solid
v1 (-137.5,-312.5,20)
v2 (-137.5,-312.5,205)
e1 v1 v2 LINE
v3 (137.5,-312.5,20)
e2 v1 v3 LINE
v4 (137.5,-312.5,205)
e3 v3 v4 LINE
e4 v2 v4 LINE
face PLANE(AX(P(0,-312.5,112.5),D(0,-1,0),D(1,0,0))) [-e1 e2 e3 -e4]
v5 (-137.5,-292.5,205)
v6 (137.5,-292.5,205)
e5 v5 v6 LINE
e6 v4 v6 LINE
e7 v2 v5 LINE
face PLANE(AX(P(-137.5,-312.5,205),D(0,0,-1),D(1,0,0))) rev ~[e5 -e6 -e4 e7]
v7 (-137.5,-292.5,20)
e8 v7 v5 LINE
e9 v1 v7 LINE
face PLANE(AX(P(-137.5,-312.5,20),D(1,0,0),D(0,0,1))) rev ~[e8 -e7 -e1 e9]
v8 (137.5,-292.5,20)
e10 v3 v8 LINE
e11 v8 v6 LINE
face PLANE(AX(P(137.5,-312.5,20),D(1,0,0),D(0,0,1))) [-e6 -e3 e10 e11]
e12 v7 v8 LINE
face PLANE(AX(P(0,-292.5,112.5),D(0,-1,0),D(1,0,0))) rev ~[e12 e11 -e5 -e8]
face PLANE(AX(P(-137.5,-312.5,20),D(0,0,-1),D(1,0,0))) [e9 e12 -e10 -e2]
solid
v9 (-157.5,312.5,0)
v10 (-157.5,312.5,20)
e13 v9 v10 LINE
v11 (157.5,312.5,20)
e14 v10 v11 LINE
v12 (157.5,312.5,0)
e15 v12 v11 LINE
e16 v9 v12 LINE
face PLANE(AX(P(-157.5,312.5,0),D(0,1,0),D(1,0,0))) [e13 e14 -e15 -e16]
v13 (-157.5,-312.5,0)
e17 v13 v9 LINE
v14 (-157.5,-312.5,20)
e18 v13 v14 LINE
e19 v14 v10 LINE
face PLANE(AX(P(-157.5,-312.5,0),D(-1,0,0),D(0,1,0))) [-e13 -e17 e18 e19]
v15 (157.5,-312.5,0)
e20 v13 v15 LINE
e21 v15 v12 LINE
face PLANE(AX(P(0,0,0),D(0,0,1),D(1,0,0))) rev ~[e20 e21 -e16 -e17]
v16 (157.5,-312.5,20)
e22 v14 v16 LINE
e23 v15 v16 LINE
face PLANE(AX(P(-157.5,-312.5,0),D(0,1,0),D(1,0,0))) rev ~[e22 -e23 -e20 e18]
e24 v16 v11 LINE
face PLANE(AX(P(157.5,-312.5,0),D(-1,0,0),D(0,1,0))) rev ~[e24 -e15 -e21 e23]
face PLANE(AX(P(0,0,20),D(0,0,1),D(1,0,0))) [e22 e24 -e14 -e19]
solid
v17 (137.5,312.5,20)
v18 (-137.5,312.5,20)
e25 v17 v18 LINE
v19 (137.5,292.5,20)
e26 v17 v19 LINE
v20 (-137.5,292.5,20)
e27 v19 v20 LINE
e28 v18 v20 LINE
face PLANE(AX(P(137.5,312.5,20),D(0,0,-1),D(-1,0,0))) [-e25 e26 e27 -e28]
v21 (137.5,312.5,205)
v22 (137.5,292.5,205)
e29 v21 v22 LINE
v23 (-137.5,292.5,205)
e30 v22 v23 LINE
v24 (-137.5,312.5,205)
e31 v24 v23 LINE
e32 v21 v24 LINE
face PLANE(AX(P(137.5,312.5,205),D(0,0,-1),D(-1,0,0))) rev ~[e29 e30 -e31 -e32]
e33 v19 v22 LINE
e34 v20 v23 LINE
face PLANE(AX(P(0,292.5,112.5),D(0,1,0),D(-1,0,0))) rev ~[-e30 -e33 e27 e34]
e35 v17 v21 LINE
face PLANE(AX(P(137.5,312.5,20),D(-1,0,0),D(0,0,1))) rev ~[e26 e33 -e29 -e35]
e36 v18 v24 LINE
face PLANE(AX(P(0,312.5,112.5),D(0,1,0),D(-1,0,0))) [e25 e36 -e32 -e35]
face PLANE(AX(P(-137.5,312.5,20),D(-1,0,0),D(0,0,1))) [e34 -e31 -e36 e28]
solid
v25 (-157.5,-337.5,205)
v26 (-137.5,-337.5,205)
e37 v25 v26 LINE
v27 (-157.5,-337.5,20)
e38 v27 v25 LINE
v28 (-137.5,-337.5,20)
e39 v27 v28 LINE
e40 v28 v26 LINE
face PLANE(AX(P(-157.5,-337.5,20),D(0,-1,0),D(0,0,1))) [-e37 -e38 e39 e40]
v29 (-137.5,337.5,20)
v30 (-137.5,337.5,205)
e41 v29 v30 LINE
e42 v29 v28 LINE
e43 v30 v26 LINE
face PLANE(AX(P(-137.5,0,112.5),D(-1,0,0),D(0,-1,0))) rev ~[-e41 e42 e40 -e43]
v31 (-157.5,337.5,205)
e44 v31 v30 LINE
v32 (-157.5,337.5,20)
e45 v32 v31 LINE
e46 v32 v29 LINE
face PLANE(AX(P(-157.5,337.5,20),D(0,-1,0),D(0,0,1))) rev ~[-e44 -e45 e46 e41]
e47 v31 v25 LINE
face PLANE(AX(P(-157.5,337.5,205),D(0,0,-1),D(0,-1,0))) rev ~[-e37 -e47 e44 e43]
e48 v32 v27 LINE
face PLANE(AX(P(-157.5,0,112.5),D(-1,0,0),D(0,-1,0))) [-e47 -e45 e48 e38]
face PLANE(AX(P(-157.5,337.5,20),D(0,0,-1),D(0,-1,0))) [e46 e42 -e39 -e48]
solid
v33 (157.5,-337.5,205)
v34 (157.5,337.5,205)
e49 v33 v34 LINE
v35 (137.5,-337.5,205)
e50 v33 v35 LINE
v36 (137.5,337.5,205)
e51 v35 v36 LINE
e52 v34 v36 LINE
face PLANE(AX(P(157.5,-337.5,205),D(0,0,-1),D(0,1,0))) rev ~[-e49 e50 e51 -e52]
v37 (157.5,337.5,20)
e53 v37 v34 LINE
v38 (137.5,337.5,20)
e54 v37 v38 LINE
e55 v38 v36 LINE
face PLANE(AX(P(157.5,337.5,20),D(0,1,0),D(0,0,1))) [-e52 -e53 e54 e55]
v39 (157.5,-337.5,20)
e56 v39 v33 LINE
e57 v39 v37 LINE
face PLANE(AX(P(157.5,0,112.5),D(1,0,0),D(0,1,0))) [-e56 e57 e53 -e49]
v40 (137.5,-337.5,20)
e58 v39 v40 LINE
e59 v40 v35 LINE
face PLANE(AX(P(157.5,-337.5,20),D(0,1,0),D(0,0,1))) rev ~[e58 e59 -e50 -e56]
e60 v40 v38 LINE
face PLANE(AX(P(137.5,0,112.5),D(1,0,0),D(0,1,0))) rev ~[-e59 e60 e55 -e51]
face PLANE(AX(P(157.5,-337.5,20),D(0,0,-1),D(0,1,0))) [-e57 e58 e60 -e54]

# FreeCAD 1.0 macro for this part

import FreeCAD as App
import Part
import Sketcher
from FreeCAD import Vector
Q = App.Units.Quantity

doc = App.newDocument("Part")
params = doc.addObject("Spreadsheet::Sheet", "Params")
for row, (alias, value) in enumerate([
    ("sketch1_width", "315 mm"),
    ("sketch1_height", "625 mm"),
    ("pad1_length", "20 mm"),
    ("sketch2_width", "675 mm"),
    ("sketch2_height", "185 mm"),
    ("pad2_length", "20 mm"),
    ("sketch3_width", "675 mm"),
    ("sketch3_height", "185 mm"),
    ("pad3_length", "20 mm"),
    ("sketch4_width", "275 mm"),
    ("sketch4_height", "185 mm"),
    ("pad4_length", "20 mm"),
    ("sketch5_width", "275 mm"),
    ("sketch5_height", "185 mm"),
    ("pad5_length", "20 mm"),
], start=1):
    params.set(f"A{row}", alias)
    params.set(f"B{row}", "=" + value)
    params.setAlias(f"B{row}", alias)

body = doc.addObject("PartDesign::Body", "Body")

# Sketch on XY plane
sketch1 = body.newObject("Sketcher::SketchObject", "Sketch")
sketch1.AttachmentSupport = (doc.getObject("XY_Plane"), [""])
sketch1.MapMode = "FlatFace"
sketch1.addGeometry([
    Part.LineSegment(Vector(-157.5, 312.5, 0), Vector(-157.5, -312.5, 0)),
    Part.LineSegment(Vector(-157.5, -312.5, 0), Vector(157.5, -312.5, 0)),
    Part.LineSegment(Vector(157.5, -312.5, 0), Vector(157.5, 312.5, 0)),
    Part.LineSegment(Vector(157.5, 312.5, 0), Vector(-157.5, 312.5, 0)),
], False)
sketch1.addConstraint([
    Sketcher.Constraint("Coincident", 0, 2, 1, 1),
    Sketcher.Constraint("Coincident", 1, 2, 2, 1),
    Sketcher.Constraint("Coincident", 2, 2, 3, 1),
    Sketcher.Constraint("Coincident", 3, 2, 0, 1),
    Sketcher.Constraint("Vertical", 0),
    Sketcher.Constraint("Horizontal", 1),
    Sketcher.Constraint("Vertical", 2),
    Sketcher.Constraint("Horizontal", 3),
    Sketcher.Constraint("Symmetric", 0, 2, 2, 2, -1, 1),
    Sketcher.Constraint("DistanceX", 1, 1, 1, 2, Q("315 mm")),
    Sketcher.Constraint("DistanceY", 0, 2, 0, 1, Q("625 mm")),
])
sketch1.setExpression("Constraints[9]", "Params.sketch1_width")
sketch1.setExpression("Constraints[10]", "Params.sketch1_height")
pad1 = body.newObject("PartDesign::Pad", "Pad")
pad1.Profile = sketch1
pad1.setExpression("Length", "Params.pad1_length")
body2 = doc.addObject("PartDesign::Body", "Body001")

# Sketch on YZ plane
sketch2 = body2.newObject("Sketcher::SketchObject", "Sketch001")
sketch2.AttachmentSupport = (doc.getObject("YZ_Plane001"), [""])
sketch2.MapMode = "FlatFace"
sketch2.AttachmentOffset = App.Placement(Vector(0, 0, 157.5), App.Rotation())
sketch2.addGeometry([
    Part.LineSegment(Vector(-337.5, 205, 0), Vector(-337.5, 20, 0)),
    Part.LineSegment(Vector(-337.5, 20, 0), Vector(337.5, 20, 0)),
    Part.LineSegment(Vector(337.5, 20, 0), Vector(337.5, 205, 0)),
    Part.LineSegment(Vector(337.5, 205, 0), Vector(-337.5, 205, 0)),
], False)
sketch2.addConstraint([
    Sketcher.Constraint("Coincident", 0, 2, 1, 1),
    Sketcher.Constraint("Coincident", 1, 2, 2, 1),
    Sketcher.Constraint("Coincident", 2, 2, 3, 1),
    Sketcher.Constraint("Coincident", 3, 2, 0, 1),
    Sketcher.Constraint("Vertical", 0),
    Sketcher.Constraint("Horizontal", 1),
    Sketcher.Constraint("Vertical", 2),
    Sketcher.Constraint("Horizontal", 3),
    Sketcher.Constraint("DistanceX", 1, 1, 1, 2, Q("675 mm")),
    Sketcher.Constraint("DistanceY", 0, 2, 0, 1, Q("185 mm")),
    Sketcher.Constraint("DistanceY", -1, 1, 0, 2, Q("20 mm")),
    Sketcher.Constraint("DistanceX", 0, 2, -1, 1, Q("337.5 mm")),
])
sketch2.setExpression("Constraints[8]", "Params.sketch2_width")
sketch2.setExpression("Constraints[9]", "Params.sketch2_height")
pad2 = body2.newObject("PartDesign::Pad", "Pad001")
pad2.Profile = sketch2
pad2.setExpression("Length", "Params.pad2_length")
pad2.Reversed = True
body3 = doc.addObject("PartDesign::Body", "Body002")

# Sketch on YZ plane
sketch3 = body3.newObject("Sketcher::SketchObject", "Sketch002")
sketch3.AttachmentSupport = (doc.getObject("YZ_Plane002"), [""])
sketch3.MapMode = "FlatFace"
sketch3.AttachmentOffset = App.Placement(Vector(0, 0, -157.5), App.Rotation())
sketch3.addGeometry([
    Part.LineSegment(Vector(337.5, 205, 0), Vector(337.5, 20, 0)),
    Part.LineSegment(Vector(337.5, 20, 0), Vector(-337.5, 20, 0)),
    Part.LineSegment(Vector(-337.5, 20, 0), Vector(-337.5, 205, 0)),
    Part.LineSegment(Vector(-337.5, 205, 0), Vector(337.5, 205, 0)),
], False)
sketch3.addConstraint([
    Sketcher.Constraint("Coincident", 0, 2, 1, 1),
    Sketcher.Constraint("Coincident", 1, 2, 2, 1),
    Sketcher.Constraint("Coincident", 2, 2, 3, 1),
    Sketcher.Constraint("Coincident", 3, 2, 0, 1),
    Sketcher.Constraint("Vertical", 0),
    Sketcher.Constraint("Horizontal", 1),
    Sketcher.Constraint("Vertical", 2),
    Sketcher.Constraint("Horizontal", 3),
    Sketcher.Constraint("DistanceX", 1, 2, 1, 1, Q("675 mm")),
    Sketcher.Constraint("DistanceY", 0, 2, 0, 1, Q("185 mm")),
    Sketcher.Constraint("DistanceY", -1, 1, 0, 2, Q("20 mm")),
    Sketcher.Constraint("DistanceX", -1, 1, 0, 2, Q("337.5 mm")),
])
sketch3.setExpression("Constraints[8]", "Params.sketch3_width")
sketch3.setExpression("Constraints[9]", "Params.sketch3_height")
pad3 = body3.newObject("PartDesign::Pad", "Pad002")
pad3.Profile = sketch3
pad3.setExpression("Length", "Params.pad3_length")
body4 = doc.addObject("PartDesign::Body", "Body003")

# Sketch on XZ plane
sketch4 = body4.newObject("Sketcher::SketchObject", "Sketch003")
sketch4.AttachmentSupport = (doc.getObject("XZ_Plane003"), [""])
sketch4.MapMode = "FlatFace"
sketch4.AttachmentOffset = App.Placement(Vector(0, 0, -312.5), App.Rotation())
sketch4.addGeometry([
    Part.LineSegment(Vector(137.5, 205, 0), Vector(137.5, 20, 0)),
    Part.LineSegment(Vector(137.5, 20, 0), Vector(-137.5, 20, 0)),
    Part.LineSegment(Vector(-137.5, 20, 0), Vector(-137.5, 205, 0)),
    Part.LineSegment(Vector(-137.5, 205, 0), Vector(137.5, 205, 0)),
], False)
sketch4.addConstraint([
    Sketcher.Constraint("Coincident", 0, 2, 1, 1),
    Sketcher.Constraint("Coincident", 1, 2, 2, 1),
    Sketcher.Constraint("Coincident", 2, 2, 3, 1),
    Sketcher.Constraint("Coincident", 3, 2, 0, 1),
    Sketcher.Constraint("Vertical", 0),
    Sketcher.Constraint("Horizontal", 1),
    Sketcher.Constraint("Vertical", 2),
    Sketcher.Constraint("Horizontal", 3),
    Sketcher.Constraint("DistanceX", 1, 2, 1, 1, Q("275 mm")),
    Sketcher.Constraint("DistanceY", 0, 2, 0, 1, Q("185 mm")),
    Sketcher.Constraint("DistanceY", -1, 1, 0, 2, Q("20 mm")),
    Sketcher.Constraint("DistanceX", -1, 1, 0, 2, Q("137.5 mm")),
])
sketch4.setExpression("Constraints[8]", "Params.sketch4_width")
sketch4.setExpression("Constraints[9]", "Params.sketch4_height")
pad4 = body4.newObject("PartDesign::Pad", "Pad003")
pad4.Profile = sketch4
pad4.setExpression("Length", "Params.pad4_length")
body5 = doc.addObject("PartDesign::Body", "Body004")

# Sketch on XZ plane
sketch5 = body5.newObject("Sketcher::SketchObject", "Sketch004")
sketch5.AttachmentSupport = (doc.getObject("XZ_Plane004"), [""])
sketch5.MapMode = "FlatFace"
sketch5.AttachmentOffset = App.Placement(Vector(0, 0, 312.5), App.Rotation())
sketch5.addGeometry([
    Part.LineSegment(Vector(-137.5, 205, 0), Vector(-137.5, 20, 0)),
    Part.LineSegment(Vector(-137.5, 20, 0), Vector(137.5, 20, 0)),
    Part.LineSegment(Vector(137.5, 20, 0), Vector(137.5, 205, 0)),
    Part.LineSegment(Vector(137.5, 205, 0), Vector(-137.5, 205, 0)),
], False)
sketch5.addConstraint([
    Sketcher.Constraint("Coincident", 0, 2, 1, 1),
    Sketcher.Constraint("Coincident", 1, 2, 2, 1),
    Sketcher.Constraint("Coincident", 2, 2, 3, 1),
    Sketcher.Constraint("Coincident", 3, 2, 0, 1),
    Sketcher.Constraint("Vertical", 0),
    Sketcher.Constraint("Horizontal", 1),
    Sketcher.Constraint("Vertical", 2),
    Sketcher.Constraint("Horizontal", 3),
    Sketcher.Constraint("DistanceX", 1, 1, 1, 2, Q("275 mm")),
    Sketcher.Constraint("DistanceY", 0, 2, 0, 1, Q("185 mm")),
    Sketcher.Constraint("DistanceY", -1, 1, 0, 2, Q("20 mm")),
    Sketcher.Constraint("DistanceX", 0, 2, -1, 1, Q("137.5 mm")),
])
sketch5.setExpression("Constraints[8]", "Params.sketch5_width")
sketch5.setExpression("Constraints[9]", "Params.sketch5_height")
pad5 = body5.newObject("PartDesign::Pad", "Pad004")
pad5.Profile = sketch5
pad5.setExpression("Length", "Params.pad5_length")
pad5.Reversed = True

doc.recompute()
